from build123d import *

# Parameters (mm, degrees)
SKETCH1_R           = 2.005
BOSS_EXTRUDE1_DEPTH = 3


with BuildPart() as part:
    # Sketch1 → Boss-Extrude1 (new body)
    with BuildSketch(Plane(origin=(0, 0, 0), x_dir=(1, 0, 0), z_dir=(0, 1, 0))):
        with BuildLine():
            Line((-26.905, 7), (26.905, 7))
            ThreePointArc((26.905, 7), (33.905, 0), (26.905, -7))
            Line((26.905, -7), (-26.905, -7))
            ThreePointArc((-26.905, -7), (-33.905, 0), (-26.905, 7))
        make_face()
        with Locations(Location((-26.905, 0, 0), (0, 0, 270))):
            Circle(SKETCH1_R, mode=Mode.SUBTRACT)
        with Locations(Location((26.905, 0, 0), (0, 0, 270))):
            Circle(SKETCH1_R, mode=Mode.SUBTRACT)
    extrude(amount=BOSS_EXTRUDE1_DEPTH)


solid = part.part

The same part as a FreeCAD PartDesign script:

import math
import FreeCAD as App
import Part
import Sketcher

doc = App.newDocument("Part")
body = doc.addObject("PartDesign::Body", "Body")

sketch1 = doc.addObject("Sketcher::SketchObject", "Sketch")
body.addObject(sketch1)
sketch1.AttachmentSupport = (doc.XZ_Plane, [""])
sketch1.MapMode = "FlatFace"
sketch1.addGeometry([
    Part.LineSegment(App.Vector(26.9, -7, 0), App.Vector(-26.9, -7, 0)),
    Part.ArcOfCircle(Part.Circle(App.Vector(-26.9, 0, 0), App.Vector(0, 0, 1), 7), math.radians(90), math.radians(270)),
    Part.LineSegment(App.Vector(-26.9, 7, 0), App.Vector(26.9, 7, 0)),
    Part.ArcOfCircle(Part.Circle(App.Vector(26.9, 0, 0), App.Vector(0, 0, 1), 7), math.radians(-90), math.radians(90)),
    Part.Circle(App.Vector(26.9, 0, 0), App.Vector(0, 0, 1), 2),
    Part.Circle(App.Vector(-26.9, 0, 0), App.Vector(0, 0, 1), 2),
], False)
sketch1.addConstraint([
    Sketcher.Constraint("Tangent", 0, 2, 1, 2),
    Sketcher.Constraint("Tangent", 1, 1, 2, 1),
    Sketcher.Constraint("Tangent", 2, 2, 3, 2),
    Sketcher.Constraint("Tangent", 3, 1, 0, 1),
    Sketcher.Constraint("Horizontal", 0),
    Sketcher.Constraint("Horizontal", 2),
    Sketcher.Constraint("Coincident", 4, 3, 3, 3),
    Sketcher.Constraint("Coincident", 5, 3, 1, 3),
    Sketcher.Constraint("Equal", 4, 5),
    Sketcher.Constraint("Symmetric", 1, 3, 3, 3, -1, 1),
    Sketcher.Constraint("Radius", 1, 7.0),
    Sketcher.Constraint("Diameter", 4, 4.01),
    Sketcher.Constraint("DistanceX", 0, 2, 0, 1, 53.81),
])
pad1 = doc.addObject("PartDesign::Pad", "Pad")
body.addObject(pad1)
pad1.Profile = sketch1
pad1.Length = 3
pad1.Reversed = True

doc.recompute()
